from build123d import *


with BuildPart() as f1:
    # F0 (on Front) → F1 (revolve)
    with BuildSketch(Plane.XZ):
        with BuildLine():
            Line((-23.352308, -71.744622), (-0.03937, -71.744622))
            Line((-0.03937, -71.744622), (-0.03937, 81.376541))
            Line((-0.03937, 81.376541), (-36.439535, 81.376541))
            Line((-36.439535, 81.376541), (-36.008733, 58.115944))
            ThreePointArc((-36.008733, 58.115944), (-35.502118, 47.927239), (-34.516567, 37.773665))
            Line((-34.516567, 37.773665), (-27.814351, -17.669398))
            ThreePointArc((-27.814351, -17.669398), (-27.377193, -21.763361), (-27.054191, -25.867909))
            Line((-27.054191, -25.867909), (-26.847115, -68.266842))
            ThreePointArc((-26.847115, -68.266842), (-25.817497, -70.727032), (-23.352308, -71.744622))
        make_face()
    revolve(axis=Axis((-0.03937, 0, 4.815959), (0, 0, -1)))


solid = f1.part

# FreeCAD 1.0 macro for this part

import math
import FreeCAD as App
import Part
import Sketcher

V = App.Vector
Q = App.Units.Quantity

doc = App.newDocument("Part")
body = doc.addObject("PartDesign::Body", "Body")

# Sketch on XZ plane
sketch1 = body.newObject("Sketcher::SketchObject", "Sketch")
sketch1.AttachmentSupport = (doc.getObject("XZ_Plane"), [""])
sketch1.MapMode = "FlatFace"
sketch1.addGeometry([
    Part.LineSegment(V(-23.352308, -71.744622, 0), V(-0.03937, -71.744622, 0)),  # 0
    Part.LineSegment(V(-0.03937, -71.744622, 0), V(-0.03937, 81.376541, 0)),  # 1
    Part.LineSegment(V(-0.03937, 81.376541, 0), V(-36.439535, 81.376541, 0)),  # 2
    Part.LineSegment(V(-36.439535, 81.376541, 0), V(-36.008733, 58.115944, 0)),  # 3
    Part.ArcOfCircle(Part.Circle(V(180.621601, 63.780549, 0), V(0, 0, 1), 216.704382), math.radians(-178.50213), math.radians(-173.107269)),  # 4
    Part.LineSegment(V(-34.516567, 37.773665, 0), V(-27.814351, -17.669398, 0)),  # 5
    Part.ArcOfCircle(Part.Circle(V(-174.606828, -35.414386, 0), V(0, 0, 1), 147.861138), math.radians(3.701808), math.radians(6.892747)),  # 6
    Part.LineSegment(V(-27.054191, -25.867909, 0), V(-26.847115, -68.266842, 0)),  # 7
    Part.ArcOfCircle(Part.Circle(V(-23.352308, -68.249773, 0), V(0, 0, 1), 3.494849), math.radians(-179.720169), math.radians(-90)),  # 8
], False)
sketch1.addGeometry(Part.LineSegment(V(-0.03937, 81.376541, 0), V(-0.03937, -71.744622, 0)), True)  # axis
sketch1.addConstraint([
    Sketcher.Constraint("Coincident", 0, 2, 1, 1),
    Sketcher.Constraint("Coincident", 1, 2, 2, 1),
    Sketcher.Constraint("Coincident", 2, 2, 3, 1),
    Sketcher.Constraint("Coincident", 3, 2, 4, 1),
    Sketcher.Constraint("Coincident", 4, 2, 5, 1),
    Sketcher.Constraint("Coincident", 5, 2, 6, 2),
    Sketcher.Constraint("Coincident", 6, 1, 7, 1),
    Sketcher.Constraint("Coincident", 7, 2, 8, 1),
    Sketcher.Constraint("Coincident", 8, 2, 0, 1),
    Sketcher.Constraint("Horizontal", 0),
    Sketcher.Constraint("Vertical", 1),
    Sketcher.Constraint("Horizontal", 2),
    Sketcher.Constraint("Vertical", 9),
    Sketcher.Constraint("Coincident", 9, 1, 1, 2),
    Sketcher.Constraint("Radius", 8, Q("3.494849 mm")),
    Sketcher.Constraint("Radius", 4, Q("216.704382 mm")),
    Sketcher.Constraint("Radius", 6, Q("147.861138 mm")),
    Sketcher.Constraint("DistanceX", -1, 1, 4, 3, Q("180.621601 mm")),
    Sketcher.Constraint("DistanceY", 5, 2, -1, 1, Q("17.669398 mm")),
    Sketcher.Constraint("DistanceX", 2, 2, 3, 2, Q("0.430802 mm")),
    Sketcher.Constraint("Distance", 5, Q("55.846691 mm")),
    Sketcher.Constraint("Distance", 7, Q("42.399439 mm")),
    Sketcher.Constraint("DistanceX", 0, 1, 0, 2, Q("23.312938 mm")),
    Sketcher.Constraint("DistanceX", 2, 2, 2, 1, Q("36.400165 mm")),
    Sketcher.Constraint("DistanceY", 1, 1, 1, 2, Q("153.121163 mm")),
    Sketcher.Constraint("DistanceY", 9, 2, 9, 1, Q("153.121163 mm")),
    Sketcher.Constraint("DistanceY", -1, 1, 4, 3, Q("63.780549 mm")),
    Sketcher.Constraint("DistanceX", 6, 3, -1, 1, Q("174.606828 mm")),
    Sketcher.Constraint("DistanceX", 8, 3, -1, 1, Q("23.352308 mm")),
    Sketcher.Constraint("DistanceX", 0, 2, -1, 1, Q("0.03937 mm")),
    Sketcher.Constraint("DistanceY", -1, 1, 1, 2, Q("81.376541 mm")),
    Sketcher.Constraint("DistanceX", 5, 2, -1, 1, Q("27.814351 mm")),
    Sketcher.Constraint("DistanceX", 6, 1, -1, 1, Q("27.054191 mm")),
])
revolution = body.newObject("PartDesign::Revolution", "Revolution")
revolution.Profile = sketch1
revolution.ReferenceAxis = (sketch1, ["Axis0"])
revolution.Angle = 360

doc.recompute()
